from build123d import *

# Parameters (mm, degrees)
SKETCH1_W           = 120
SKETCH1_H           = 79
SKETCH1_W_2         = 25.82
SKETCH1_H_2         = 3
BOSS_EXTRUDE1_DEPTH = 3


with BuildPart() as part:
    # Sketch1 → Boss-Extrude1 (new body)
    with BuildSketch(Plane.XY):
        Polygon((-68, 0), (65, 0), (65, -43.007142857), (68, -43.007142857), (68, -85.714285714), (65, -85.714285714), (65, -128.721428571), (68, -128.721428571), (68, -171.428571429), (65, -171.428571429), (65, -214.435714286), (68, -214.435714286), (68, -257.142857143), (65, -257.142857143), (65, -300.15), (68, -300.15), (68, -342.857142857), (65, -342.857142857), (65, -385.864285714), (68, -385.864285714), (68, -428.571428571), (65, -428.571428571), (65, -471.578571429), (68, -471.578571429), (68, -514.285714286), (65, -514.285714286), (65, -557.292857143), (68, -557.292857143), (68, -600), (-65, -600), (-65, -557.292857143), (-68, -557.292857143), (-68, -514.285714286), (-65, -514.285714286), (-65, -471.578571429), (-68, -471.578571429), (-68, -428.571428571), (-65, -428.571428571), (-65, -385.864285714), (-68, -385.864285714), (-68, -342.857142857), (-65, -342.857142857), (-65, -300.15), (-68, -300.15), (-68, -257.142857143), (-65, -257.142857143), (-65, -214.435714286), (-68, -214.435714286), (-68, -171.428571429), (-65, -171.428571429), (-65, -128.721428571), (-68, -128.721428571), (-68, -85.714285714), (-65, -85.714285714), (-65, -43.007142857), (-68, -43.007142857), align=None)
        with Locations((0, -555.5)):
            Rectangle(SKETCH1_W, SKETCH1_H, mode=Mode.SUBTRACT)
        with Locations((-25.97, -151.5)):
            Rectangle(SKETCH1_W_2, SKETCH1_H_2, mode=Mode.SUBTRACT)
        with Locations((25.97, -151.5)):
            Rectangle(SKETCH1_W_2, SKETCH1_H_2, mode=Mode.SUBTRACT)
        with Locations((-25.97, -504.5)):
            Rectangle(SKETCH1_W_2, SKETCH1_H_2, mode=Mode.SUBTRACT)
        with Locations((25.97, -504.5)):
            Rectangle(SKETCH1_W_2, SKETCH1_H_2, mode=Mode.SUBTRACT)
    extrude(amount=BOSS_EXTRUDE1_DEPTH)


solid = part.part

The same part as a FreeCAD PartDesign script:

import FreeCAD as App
import Part
import Sketcher
from FreeCAD import Vector

doc = App.newDocument("Part")
body = doc.addObject("PartDesign::Body", "Body")

sketch1 = doc.addObject("Sketcher::SketchObject", "Sketch")
body.addObject(sketch1)
sketch1.AttachmentSupport = (doc.XY_Plane, [""])
sketch1.MapMode = "FlatFace"
sketch1.addGeometry([
    Part.LineSegment(Vector(65, 0, 0), Vector(-68, 0, 0)),
    Part.LineSegment(Vector(-68, 0, 0), Vector(-68, -43, 0)),
    Part.LineSegment(Vector(-68, -43, 0), Vector(-65, -43, 0)),
    Part.LineSegment(Vector(-65, -43, 0), Vector(-65, -85.7, 0)),
    Part.LineSegment(Vector(-65, -85.7, 0), Vector(-68, -85.7, 0)),
    Part.LineSegment(Vector(-68, -85.7, 0), Vector(-68, -128.7, 0)),
    Part.LineSegment(Vector(-68, -128.7, 0), Vector(-65, -128.7, 0)),
    Part.LineSegment(Vector(-65, -128.7, 0), Vector(-65, -171.4, 0)),
    Part.LineSegment(Vector(-65, -171.4, 0), Vector(-68, -171.4, 0)),
    Part.LineSegment(Vector(-68, -171.4, 0), Vector(-68, -214.4, 0)),
    Part.LineSegment(Vector(-68, -214.4, 0), Vector(-65, -214.4, 0)),
    Part.LineSegment(Vector(-65, -214.4, 0), Vector(-65, -257.1, 0)),
    Part.LineSegment(Vector(-65, -257.1, 0), Vector(-68, -257.1, 0)),
    Part.LineSegment(Vector(-68, -257.1, 0), Vector(-68, -300.1, 0)),
    Part.LineSegment(Vector(-68, -300.1, 0), Vector(-65, -300.1, 0)),
    Part.LineSegment(Vector(-65, -300.1, 0), Vector(-65, -342.9, 0)),
    Part.LineSegment(Vector(-65, -342.9, 0), Vector(-68, -342.9, 0)),
    Part.LineSegment(Vector(-68, -342.9, 0), Vector(-68, -385.9, 0)),
    Part.LineSegment(Vector(-68, -385.9, 0), Vector(-65, -385.9, 0)),
    Part.LineSegment(Vector(-65, -385.9, 0), Vector(-65, -428.6, 0)),
    Part.LineSegment(Vector(-65, -428.6, 0), Vector(-68, -428.6, 0)),
    Part.LineSegment(Vector(-68, -428.6, 0), Vector(-68, -471.6, 0)),
    Part.LineSegment(Vector(-68, -471.6, 0), Vector(-65, -471.6, 0)),
    Part.LineSegment(Vector(-65, -471.6, 0), Vector(-65, -514.3, 0)),
    Part.LineSegment(Vector(-65, -514.3, 0), Vector(-68, -514.3, 0)),
    Part.LineSegment(Vector(-68, -514.3, 0), Vector(-68, -557.3, 0)),
    Part.LineSegment(Vector(-68, -557.3, 0), Vector(-65, -557.3, 0)),
    Part.LineSegment(Vector(-65, -557.3, 0), Vector(-65, -600, 0)),
    Part.LineSegment(Vector(-65, -600, 0), Vector(68, -600, 0)),
    Part.LineSegment(Vector(68, -600, 0), Vector(68, -557.3, 0)),
    Part.LineSegment(Vector(68, -557.3, 0), Vector(65, -557.3, 0)),
    Part.LineSegment(Vector(65, -557.3, 0), Vector(65, -514.3, 0)),
    Part.LineSegment(Vector(65, -514.3, 0), Vector(68, -514.3, 0)),
    Part.LineSegment(Vector(68, -514.3, 0), Vector(68, -471.6, 0)),
    Part.LineSegment(Vector(68, -471.6, 0), Vector(65, -471.6, 0)),
    Part.LineSegment(Vector(65, -471.6, 0), Vector(65, -428.6, 0)),
    Part.LineSegment(Vector(65, -428.6, 0), Vector(68, -428.6, 0)),
    Part.LineSegment(Vector(68, -428.6, 0), Vector(68, -385.9, 0)),
    Part.LineSegment(Vector(68, -385.9, 0), Vector(65, -385.9, 0)),
    Part.LineSegment(Vector(65, -385.9, 0), Vector(65, -342.9, 0)),
    Part.LineSegment(Vector(65, -342.9, 0), Vector(68, -342.9, 0)),
    Part.LineSegment(Vector(68, -342.9, 0), Vector(68, -300.1, 0)),
    Part.LineSegment(Vector(68, -300.1, 0), Vector(65, -300.1, 0)),
    Part.LineSegment(Vector(65, -300.1, 0), Vector(65, -257.1, 0)),
    Part.LineSegment(Vector(65, -257.1, 0), Vector(68, -257.1, 0)),
    Part.LineSegment(Vector(68, -257.1, 0), Vector(68, -214.4, 0)),
    Part.LineSegment(Vector(68, -214.4, 0), Vector(65, -214.4, 0)),
    Part.LineSegment(Vector(65, -214.4, 0), Vector(65, -171.4, 0)),
    Part.LineSegment(Vector(65, -171.4, 0), Vector(68, -171.4, 0)),
    Part.LineSegment(Vector(68, -171.4, 0), Vector(68, -128.7, 0)),
    Part.LineSegment(Vector(68, -128.7, 0), Vector(65, -128.7, 0)),
    Part.LineSegment(Vector(65, -128.7, 0), Vector(65, -85.7, 0)),
    Part.LineSegment(Vector(65, -85.7, 0), Vector(68, -85.7, 0)),
    Part.LineSegment(Vector(68, -85.7, 0), Vector(68, -43, 0)),
    Part.LineSegment(Vector(68, -43, 0), Vector(65, -43, 0)),
    Part.LineSegment(Vector(65, -43, 0), Vector(65, 0, 0)),
    Part.LineSegment(Vector(13.1, -506, 0), Vector(13.1, -503, 0)),
    Part.LineSegment(Vector(13.1, -503, 0), Vector(38.9, -503, 0)),
    Part.LineSegment(Vector(38.9, -503, 0), Vector(38.9, -506, 0)),
    Part.LineSegment(Vector(38.9, -506, 0), Vector(13.1, -506, 0)),
    Part.LineSegment(Vector(-60, -595, 0), Vector(-60, -516, 0)),
    Part.LineSegment(Vector(-60, -516, 0), Vector(60, -516, 0)),
    Part.LineSegment(Vector(60, -516, 0), Vector(60, -595, 0)),
    Part.LineSegment(Vector(60, -595, 0), Vector(-60, -595, 0)),
    Part.LineSegment(Vector(-38.9, -506, 0), Vector(-38.9, -503, 0)),
    Part.LineSegment(Vector(-38.9, -503, 0), Vector(-13.1, -503, 0)),
    Part.LineSegment(Vector(-13.1, -503, 0), Vector(-13.1, -506, 0)),
    Part.LineSegment(Vector(-13.1, -506, 0), Vector(-38.9, -506, 0)),
    Part.LineSegment(Vector(13.1, -153, 0), Vector(13.1, -150, 0)),
    Part.LineSegment(Vector(13.1, -150, 0), Vector(38.9, -150, 0)),
    Part.LineSegment(Vector(38.9, -150, 0), Vector(38.9, -153, 0)),
    Part.LineSegment(Vector(38.9, -153, 0), Vector(13.1, -153, 0)),
    Part.LineSegment(Vector(-38.9, -153, 0), Vector(-38.9, -150, 0)),
    Part.LineSegment(Vector(-38.9, -150, 0), Vector(-13.1, -150, 0)),
    Part.LineSegment(Vector(-13.1, -150, 0), Vector(-13.1, -153, 0)),
    Part.LineSegment(Vector(-13.1, -153, 0), Vector(-38.9, -153, 0)),
], False)
sketch1.addConstraint([
    Sketcher.Constraint("Coincident", 0, 2, 1, 1),
    Sketcher.Constraint("Coincident", 1, 2, 2, 1),
    Sketcher.Constraint("Coincident", 2, 2, 3, 1),
    Sketcher.Constraint("Coincident", 3, 2, 4, 1),
    Sketcher.Constraint("Coincident", 4, 2, 5, 1),
    Sketcher.Constraint("Coincident", 5, 2, 6, 1),
    Sketcher.Constraint("Coincident", 6, 2, 7, 1),
    Sketcher.Constraint("Coincident", 7, 2, 8, 1),
    Sketcher.Constraint("Coincident", 8, 2, 9, 1),
    Sketcher.Constraint("Coincident", 9, 2, 10, 1),
    Sketcher.Constraint("Coincident", 10, 2, 11, 1),
    Sketcher.Constraint("Coincident", 11, 2, 12, 1),
    Sketcher.Constraint("Coincident", 12, 2, 13, 1),
    Sketcher.Constraint("Coincident", 13, 2, 14, 1),
    Sketcher.Constraint("Coincident", 14, 2, 15, 1),
    Sketcher.Constraint("Coincident", 15, 2, 16, 1),
    Sketcher.Constraint("Coincident", 16, 2, 17, 1),
    Sketcher.Constraint("Coincident", 17, 2, 18, 1),
    Sketcher.Constraint("Coincident", 18, 2, 19, 1),
    Sketcher.Constraint("Coincident", 19, 2, 20, 1),
    Sketcher.Constraint("Coincident", 20, 2, 21, 1),
    Sketcher.Constraint("Coincident", 21, 2, 22, 1),
    Sketcher.Constraint("Coincident", 22, 2, 23, 1),
    Sketcher.Constraint("Coincident", 23, 2, 24, 1),
    Sketcher.Constraint("Coincident", 24, 2, 25, 1),
    Sketcher.Constraint("Coincident", 25, 2, 26, 1),
    Sketcher.Constraint("Coincident", 26, 2, 27, 1),
    Sketcher.Constraint("Coincident", 27, 2, 28, 1),
    Sketcher.Constraint("Coincident", 28, 2, 29, 1),
    Sketcher.Constraint("Coincident", 29, 2, 30, 1),
    Sketcher.Constraint("Coincident", 30, 2, 31, 1),
    Sketcher.Constraint("Coincident", 31, 2, 32, 1),
    Sketcher.Constraint("Coincident", 32, 2, 33, 1),
    Sketcher.Constraint("Coincident", 33, 2, 34, 1),
    Sketcher.Constraint("Coincident", 34, 2, 35, 1),
    Sketcher.Constraint("Coincident", 35, 2, 36, 1),
    Sketcher.Constraint("Coincident", 36, 2, 37, 1),
    Sketcher.Constraint("Coincident", 37, 2, 38, 1),
    Sketcher.Constraint("Coincident", 38, 2, 39, 1),
    Sketcher.Constraint("Coincident", 39, 2, 40, 1),
    Sketcher.Constraint("Coincident", 40, 2, 41, 1),
    Sketcher.Constraint("Coincident", 41, 2, 42, 1),
    Sketcher.Constraint("Coincident", 42, 2, 43, 1),
    Sketcher.Constraint("Coincident", 43, 2, 44, 1),
    Sketcher.Constraint("Coincident", 44, 2, 45, 1),
    Sketcher.Constraint("Coincident", 45, 2, 46, 1),
    Sketcher.Constraint("Coincident", 46, 2, 47, 1),
    Sketcher.Constraint("Coincident", 47, 2, 48, 1),
    Sketcher.Constraint("Coincident", 48, 2, 49, 1),
    Sketcher.Constraint("Coincident", 49, 2, 50, 1),
    Sketcher.Constraint("Coincident", 50, 2, 51, 1),
    Sketcher.Constraint("Coincident", 51, 2, 52, 1),
    Sketcher.Constraint("Coincident", 52, 2, 53, 1),
    Sketcher.Constraint("Coincident", 53, 2, 54, 1),
    Sketcher.Constraint("Coincident", 54, 2, 55, 1),
    Sketcher.Constraint("Coincident", 55, 2, 0, 1),
    Sketcher.Constraint("Coincident", 56, 2, 57, 1),
    Sketcher.Constraint("Coincident", 57, 2, 58, 1),
    Sketcher.Constraint("Coincident", 58, 2, 59, 1),
    Sketcher.Constraint("Coincident", 59, 2, 56, 1),
    Sketcher.Constraint("Coincident", 60, 2, 61, 1),
    Sketcher.Constraint("Coincident", 61, 2, 62, 1),
    Sketcher.Constraint("Coincident", 62, 2, 63, 1),
    Sketcher.Constraint("Coincident", 63, 2, 60, 1),
    Sketcher.Constraint("Coincident", 64, 2, 65, 1),
    Sketcher.Constraint("Coincident", 65, 2, 66, 1),
    Sketcher.Constraint("Coincident", 66, 2, 67, 1),
    Sketcher.Constraint("Coincident", 67, 2, 64, 1),
    Sketcher.Constraint("Coincident", 68, 2, 69, 1),
    Sketcher.Constraint("Coincident", 69, 2, 70, 1),
    Sketcher.Constraint("Coincident", 70, 2, 71, 1),
    Sketcher.Constraint("Coincident", 71, 2, 68, 1),
    Sketcher.Constraint("Coincident", 72, 2, 73, 1),
    Sketcher.Constraint("Coincident", 73, 2, 74, 1),
    Sketcher.Constraint("Coincident", 74, 2, 75, 1),
    Sketcher.Constraint("Coincident", 75, 2, 72, 1),
    Sketcher.Constraint("Horizontal", 0),
    Sketcher.Constraint("Vertical", 1),
    Sketcher.Constraint("Horizontal", 2),
    Sketcher.Constraint("Vertical", 3),
    Sketcher.Constraint("Horizontal", 4),
    Sketcher.Constraint("Vertical", 5),
    Sketcher.Constraint("Horizontal", 6),
    Sketcher.Constraint("Vertical", 7),
    Sketcher.Constraint("Horizontal", 8),
    Sketcher.Constraint("Vertical", 9),
    Sketcher.Constraint("Horizontal", 10),
    Sketcher.Constraint("Vertical", 11),
    Sketcher.Constraint("Horizontal", 12),
    Sketcher.Constraint("Vertical", 13),
    Sketcher.Constraint("Horizontal", 14),
    Sketcher.Constraint("Vertical", 15),
    Sketcher.Constraint("Horizontal", 16),
    Sketcher.Constraint("Vertical", 17),
    Sketcher.Constraint("Horizontal", 18),
    Sketcher.Constraint("Vertical", 19),
    Sketcher.Constraint("Horizontal", 20),
    Sketcher.Constraint("Vertical", 21),
    Sketcher.Constraint("Horizontal", 22),
    Sketcher.Constraint("Vertical", 23),
    Sketcher.Constraint("Horizontal", 24),
    Sketcher.Constraint("Vertical", 25),
    Sketcher.Constraint("Horizontal", 26),
    Sketcher.Constraint("Vertical", 27),
    Sketcher.Constraint("Horizontal", 28),
    Sketcher.Constraint("Vertical", 29),
    Sketcher.Constraint("Horizontal", 30),
    Sketcher.Constraint("Vertical", 31),
    Sketcher.Constraint("Horizontal", 32),
    Sketcher.Constraint("Vertical", 33),
    Sketcher.Constraint("Horizontal", 34),
    Sketcher.Constraint("Vertical", 35),
    Sketcher.Constraint("Horizontal", 36),
    Sketcher.Constraint("Vertical", 37),
    Sketcher.Constraint("Horizontal", 38),
    Sketcher.Constraint("Vertical", 39),
    Sketcher.Constraint("Horizontal", 40),
    Sketcher.Constraint("Vertical", 41),
    Sketcher.Constraint("Horizontal", 42),
    Sketcher.Constraint("Vertical", 43),
    Sketcher.Constraint("Horizontal", 44),
    Sketcher.Constraint("Vertical", 45),
    Sketcher.Constraint("Horizontal", 46),
    Sketcher.Constraint("Vertical", 47),
    Sketcher.Constraint("Horizontal", 48),
    Sketcher.Constraint("Vertical", 49),
    Sketcher.Constraint("Horizontal", 50),
    Sketcher.Constraint("Vertical", 51),
    Sketcher.Constraint("Horizontal", 52),
    Sketcher.Constraint("Vertical", 53),
    Sketcher.Constraint("Horizontal", 54),
    Sketcher.Constraint("Vertical", 55),
    Sketcher.Constraint("Vertical", 56),
    Sketcher.Constraint("Horizontal", 57),
    Sketcher.Constraint("Vertical", 58),
    Sketcher.Constraint("Horizontal", 59),
    Sketcher.Constraint("Vertical", 60),
    Sketcher.Constraint("Horizontal", 61),
    Sketcher.Constraint("Vertical", 62),
    Sketcher.Constraint("Horizontal", 63),
    Sketcher.Constraint("Vertical", 64),
    Sketcher.Constraint("Horizontal", 65),
    Sketcher.Constraint("Vertical", 66),
    Sketcher.Constraint("Horizontal", 67),
    Sketcher.Constraint("Vertical", 68),
    Sketcher.Constraint("Horizontal", 69),
    Sketcher.Constraint("Vertical", 70),
    Sketcher.Constraint("Horizontal", 71),
    Sketcher.Constraint("Vertical", 72),
    Sketcher.Constraint("Horizontal", 73),
    Sketcher.Constraint("Vertical", 74),
    Sketcher.Constraint("Horizontal", 75),
    Sketcher.Constraint("Symmetric", 25, 2, 29, 2, -2),
    Sketcher.Constraint("Symmetric", 23, 2, 31, 2, -2),
    Sketcher.Constraint("Symmetric", 21, 2, 33, 2, -2),
    Sketcher.Constraint("Symmetric", 19, 2, 35, 2, -2),
    Sketcher.Constraint("Symmetric", 17, 2, 37, 2, -2),
    Sketcher.Constraint("Symmetric", 15, 2, 39, 2, -2),
    Sketcher.Constraint("Symmetric", 13, 2, 41, 2, -2),
    Sketcher.Constraint("Symmetric", 11, 2, 43, 2, -2),
    Sketcher.Constraint("Symmetric", 9, 2, 45, 2, -2),
    Sketcher.Constraint("Symmetric", 7, 2, 47, 2, -2),
    Sketcher.Constraint("Symmetric", 5, 2, 49, 2, -2),
    Sketcher.Constraint("Symmetric", 3, 2, 51, 2, -2),
    Sketcher.Constraint("Symmetric", 1, 2, 53, 2, -2),
    Sketcher.Constraint("Symmetric", 57, 2, 64, 2, -2),
    Sketcher.Constraint("Symmetric", 59, 2, 66, 2, -2),
    Sketcher.Constraint("Symmetric", 69, 2, 72, 2, -2),
    Sketcher.Constraint("Symmetric", 71, 2, 74, 2, -2),
    Sketcher.Constraint("PointOnObject", 0, 2, -1),
    Sketcher.Constraint("Vertical", 1, 2, 4, 2),
    Sketcher.Constraint("Vertical", 3, 2, 6, 2),
    Sketcher.Constraint("Vertical", 5, 2, 8, 2),
    Sketcher.Constraint("Vertical", 7, 2, 10, 2),
    Sketcher.Constraint("Vertical", 9, 2, 12, 2),
    Sketcher.Constraint("Vertical", 11, 2, 14, 2),
    Sketcher.Constraint("Vertical", 13, 2, 16, 2),
    Sketcher.Constraint("Vertical", 15, 2, 18, 2),
    Sketcher.Constraint("Vertical", 17, 2, 20, 2),
    Sketcher.Constraint("Vertical", 19, 2, 22, 2),
    Sketcher.Constraint("Vertical", 21, 2, 24, 2),
    Sketcher.Constraint("Vertical", 23, 2, 26, 2),
    Sketcher.Constraint("Vertical", 51, 2, 54, 2),
    Sketcher.Constraint("Vertical", 59, 2, 68, 2),
    Sketcher.Constraint("Vertical", 58, 2, 69, 2),
    Sketcher.Constraint("Equal", 1, 5),
    Sketcher.Constraint("Equal", 3, 7),
    Sketcher.Constraint("Equal", 5, 9),
    Sketcher.Constraint("Equal", 7, 11),
    Sketcher.Constraint("Equal", 9, 13),
    Sketcher.Constraint("Equal", 11, 15),
    Sketcher.Constraint("Equal", 13, 17),
    Sketcher.Constraint("Equal", 15, 19),
    Sketcher.Constraint("Equal", 17, 21),
    Sketcher.Constraint("Equal", 19, 23),
    Sketcher.Constraint("Equal", 21, 25),
    Sketcher.Constraint("Equal", 23, 27),
    Sketcher.Constraint("Equal", 54, 56),
    Sketcher.Constraint("Equal", 66, 68),
    Sketcher.Constraint("DistanceX", 0, 2, 0, 1, 133.0),
    Sketcher.Constraint("DistanceX", 2, 1, 2, 2, 3.0),
    Sketcher.Constraint("DistanceX", 61, 1, 61, 2, 120.0),
    Sketcher.Constraint("DistanceY", 60, 1, 60, 2, 79.0),
    Sketcher.Constraint("DistanceY", 27, 2, -1, 1, 600.0),
    Sketcher.Constraint("DistanceY", 56, 2, -1, 1, 503.0),
    Sketcher.Constraint("DistanceX", 60, 2, -1, 1, 60.0),
    Sketcher.Constraint("DistanceY", 60, 2, -1, 1, 516.0),
    Sketcher.Constraint("DistanceY", 68, 2, -1, 1, 150.0),
    Sketcher.Constraint("DistanceX", 57, 1, 57, 2, 25.82),
    Sketcher.Constraint("DistanceY", 13, 2, -1, 1, 300.15),
    Sketcher.Constraint("DistanceX", -1, 1, 56, 2, 13.06),
])
pad1 = doc.addObject("PartDesign::Pad", "Pad")
body.addObject(pad1)
pad1.Profile = sketch1
pad1.Length = 3

doc.recompute()
